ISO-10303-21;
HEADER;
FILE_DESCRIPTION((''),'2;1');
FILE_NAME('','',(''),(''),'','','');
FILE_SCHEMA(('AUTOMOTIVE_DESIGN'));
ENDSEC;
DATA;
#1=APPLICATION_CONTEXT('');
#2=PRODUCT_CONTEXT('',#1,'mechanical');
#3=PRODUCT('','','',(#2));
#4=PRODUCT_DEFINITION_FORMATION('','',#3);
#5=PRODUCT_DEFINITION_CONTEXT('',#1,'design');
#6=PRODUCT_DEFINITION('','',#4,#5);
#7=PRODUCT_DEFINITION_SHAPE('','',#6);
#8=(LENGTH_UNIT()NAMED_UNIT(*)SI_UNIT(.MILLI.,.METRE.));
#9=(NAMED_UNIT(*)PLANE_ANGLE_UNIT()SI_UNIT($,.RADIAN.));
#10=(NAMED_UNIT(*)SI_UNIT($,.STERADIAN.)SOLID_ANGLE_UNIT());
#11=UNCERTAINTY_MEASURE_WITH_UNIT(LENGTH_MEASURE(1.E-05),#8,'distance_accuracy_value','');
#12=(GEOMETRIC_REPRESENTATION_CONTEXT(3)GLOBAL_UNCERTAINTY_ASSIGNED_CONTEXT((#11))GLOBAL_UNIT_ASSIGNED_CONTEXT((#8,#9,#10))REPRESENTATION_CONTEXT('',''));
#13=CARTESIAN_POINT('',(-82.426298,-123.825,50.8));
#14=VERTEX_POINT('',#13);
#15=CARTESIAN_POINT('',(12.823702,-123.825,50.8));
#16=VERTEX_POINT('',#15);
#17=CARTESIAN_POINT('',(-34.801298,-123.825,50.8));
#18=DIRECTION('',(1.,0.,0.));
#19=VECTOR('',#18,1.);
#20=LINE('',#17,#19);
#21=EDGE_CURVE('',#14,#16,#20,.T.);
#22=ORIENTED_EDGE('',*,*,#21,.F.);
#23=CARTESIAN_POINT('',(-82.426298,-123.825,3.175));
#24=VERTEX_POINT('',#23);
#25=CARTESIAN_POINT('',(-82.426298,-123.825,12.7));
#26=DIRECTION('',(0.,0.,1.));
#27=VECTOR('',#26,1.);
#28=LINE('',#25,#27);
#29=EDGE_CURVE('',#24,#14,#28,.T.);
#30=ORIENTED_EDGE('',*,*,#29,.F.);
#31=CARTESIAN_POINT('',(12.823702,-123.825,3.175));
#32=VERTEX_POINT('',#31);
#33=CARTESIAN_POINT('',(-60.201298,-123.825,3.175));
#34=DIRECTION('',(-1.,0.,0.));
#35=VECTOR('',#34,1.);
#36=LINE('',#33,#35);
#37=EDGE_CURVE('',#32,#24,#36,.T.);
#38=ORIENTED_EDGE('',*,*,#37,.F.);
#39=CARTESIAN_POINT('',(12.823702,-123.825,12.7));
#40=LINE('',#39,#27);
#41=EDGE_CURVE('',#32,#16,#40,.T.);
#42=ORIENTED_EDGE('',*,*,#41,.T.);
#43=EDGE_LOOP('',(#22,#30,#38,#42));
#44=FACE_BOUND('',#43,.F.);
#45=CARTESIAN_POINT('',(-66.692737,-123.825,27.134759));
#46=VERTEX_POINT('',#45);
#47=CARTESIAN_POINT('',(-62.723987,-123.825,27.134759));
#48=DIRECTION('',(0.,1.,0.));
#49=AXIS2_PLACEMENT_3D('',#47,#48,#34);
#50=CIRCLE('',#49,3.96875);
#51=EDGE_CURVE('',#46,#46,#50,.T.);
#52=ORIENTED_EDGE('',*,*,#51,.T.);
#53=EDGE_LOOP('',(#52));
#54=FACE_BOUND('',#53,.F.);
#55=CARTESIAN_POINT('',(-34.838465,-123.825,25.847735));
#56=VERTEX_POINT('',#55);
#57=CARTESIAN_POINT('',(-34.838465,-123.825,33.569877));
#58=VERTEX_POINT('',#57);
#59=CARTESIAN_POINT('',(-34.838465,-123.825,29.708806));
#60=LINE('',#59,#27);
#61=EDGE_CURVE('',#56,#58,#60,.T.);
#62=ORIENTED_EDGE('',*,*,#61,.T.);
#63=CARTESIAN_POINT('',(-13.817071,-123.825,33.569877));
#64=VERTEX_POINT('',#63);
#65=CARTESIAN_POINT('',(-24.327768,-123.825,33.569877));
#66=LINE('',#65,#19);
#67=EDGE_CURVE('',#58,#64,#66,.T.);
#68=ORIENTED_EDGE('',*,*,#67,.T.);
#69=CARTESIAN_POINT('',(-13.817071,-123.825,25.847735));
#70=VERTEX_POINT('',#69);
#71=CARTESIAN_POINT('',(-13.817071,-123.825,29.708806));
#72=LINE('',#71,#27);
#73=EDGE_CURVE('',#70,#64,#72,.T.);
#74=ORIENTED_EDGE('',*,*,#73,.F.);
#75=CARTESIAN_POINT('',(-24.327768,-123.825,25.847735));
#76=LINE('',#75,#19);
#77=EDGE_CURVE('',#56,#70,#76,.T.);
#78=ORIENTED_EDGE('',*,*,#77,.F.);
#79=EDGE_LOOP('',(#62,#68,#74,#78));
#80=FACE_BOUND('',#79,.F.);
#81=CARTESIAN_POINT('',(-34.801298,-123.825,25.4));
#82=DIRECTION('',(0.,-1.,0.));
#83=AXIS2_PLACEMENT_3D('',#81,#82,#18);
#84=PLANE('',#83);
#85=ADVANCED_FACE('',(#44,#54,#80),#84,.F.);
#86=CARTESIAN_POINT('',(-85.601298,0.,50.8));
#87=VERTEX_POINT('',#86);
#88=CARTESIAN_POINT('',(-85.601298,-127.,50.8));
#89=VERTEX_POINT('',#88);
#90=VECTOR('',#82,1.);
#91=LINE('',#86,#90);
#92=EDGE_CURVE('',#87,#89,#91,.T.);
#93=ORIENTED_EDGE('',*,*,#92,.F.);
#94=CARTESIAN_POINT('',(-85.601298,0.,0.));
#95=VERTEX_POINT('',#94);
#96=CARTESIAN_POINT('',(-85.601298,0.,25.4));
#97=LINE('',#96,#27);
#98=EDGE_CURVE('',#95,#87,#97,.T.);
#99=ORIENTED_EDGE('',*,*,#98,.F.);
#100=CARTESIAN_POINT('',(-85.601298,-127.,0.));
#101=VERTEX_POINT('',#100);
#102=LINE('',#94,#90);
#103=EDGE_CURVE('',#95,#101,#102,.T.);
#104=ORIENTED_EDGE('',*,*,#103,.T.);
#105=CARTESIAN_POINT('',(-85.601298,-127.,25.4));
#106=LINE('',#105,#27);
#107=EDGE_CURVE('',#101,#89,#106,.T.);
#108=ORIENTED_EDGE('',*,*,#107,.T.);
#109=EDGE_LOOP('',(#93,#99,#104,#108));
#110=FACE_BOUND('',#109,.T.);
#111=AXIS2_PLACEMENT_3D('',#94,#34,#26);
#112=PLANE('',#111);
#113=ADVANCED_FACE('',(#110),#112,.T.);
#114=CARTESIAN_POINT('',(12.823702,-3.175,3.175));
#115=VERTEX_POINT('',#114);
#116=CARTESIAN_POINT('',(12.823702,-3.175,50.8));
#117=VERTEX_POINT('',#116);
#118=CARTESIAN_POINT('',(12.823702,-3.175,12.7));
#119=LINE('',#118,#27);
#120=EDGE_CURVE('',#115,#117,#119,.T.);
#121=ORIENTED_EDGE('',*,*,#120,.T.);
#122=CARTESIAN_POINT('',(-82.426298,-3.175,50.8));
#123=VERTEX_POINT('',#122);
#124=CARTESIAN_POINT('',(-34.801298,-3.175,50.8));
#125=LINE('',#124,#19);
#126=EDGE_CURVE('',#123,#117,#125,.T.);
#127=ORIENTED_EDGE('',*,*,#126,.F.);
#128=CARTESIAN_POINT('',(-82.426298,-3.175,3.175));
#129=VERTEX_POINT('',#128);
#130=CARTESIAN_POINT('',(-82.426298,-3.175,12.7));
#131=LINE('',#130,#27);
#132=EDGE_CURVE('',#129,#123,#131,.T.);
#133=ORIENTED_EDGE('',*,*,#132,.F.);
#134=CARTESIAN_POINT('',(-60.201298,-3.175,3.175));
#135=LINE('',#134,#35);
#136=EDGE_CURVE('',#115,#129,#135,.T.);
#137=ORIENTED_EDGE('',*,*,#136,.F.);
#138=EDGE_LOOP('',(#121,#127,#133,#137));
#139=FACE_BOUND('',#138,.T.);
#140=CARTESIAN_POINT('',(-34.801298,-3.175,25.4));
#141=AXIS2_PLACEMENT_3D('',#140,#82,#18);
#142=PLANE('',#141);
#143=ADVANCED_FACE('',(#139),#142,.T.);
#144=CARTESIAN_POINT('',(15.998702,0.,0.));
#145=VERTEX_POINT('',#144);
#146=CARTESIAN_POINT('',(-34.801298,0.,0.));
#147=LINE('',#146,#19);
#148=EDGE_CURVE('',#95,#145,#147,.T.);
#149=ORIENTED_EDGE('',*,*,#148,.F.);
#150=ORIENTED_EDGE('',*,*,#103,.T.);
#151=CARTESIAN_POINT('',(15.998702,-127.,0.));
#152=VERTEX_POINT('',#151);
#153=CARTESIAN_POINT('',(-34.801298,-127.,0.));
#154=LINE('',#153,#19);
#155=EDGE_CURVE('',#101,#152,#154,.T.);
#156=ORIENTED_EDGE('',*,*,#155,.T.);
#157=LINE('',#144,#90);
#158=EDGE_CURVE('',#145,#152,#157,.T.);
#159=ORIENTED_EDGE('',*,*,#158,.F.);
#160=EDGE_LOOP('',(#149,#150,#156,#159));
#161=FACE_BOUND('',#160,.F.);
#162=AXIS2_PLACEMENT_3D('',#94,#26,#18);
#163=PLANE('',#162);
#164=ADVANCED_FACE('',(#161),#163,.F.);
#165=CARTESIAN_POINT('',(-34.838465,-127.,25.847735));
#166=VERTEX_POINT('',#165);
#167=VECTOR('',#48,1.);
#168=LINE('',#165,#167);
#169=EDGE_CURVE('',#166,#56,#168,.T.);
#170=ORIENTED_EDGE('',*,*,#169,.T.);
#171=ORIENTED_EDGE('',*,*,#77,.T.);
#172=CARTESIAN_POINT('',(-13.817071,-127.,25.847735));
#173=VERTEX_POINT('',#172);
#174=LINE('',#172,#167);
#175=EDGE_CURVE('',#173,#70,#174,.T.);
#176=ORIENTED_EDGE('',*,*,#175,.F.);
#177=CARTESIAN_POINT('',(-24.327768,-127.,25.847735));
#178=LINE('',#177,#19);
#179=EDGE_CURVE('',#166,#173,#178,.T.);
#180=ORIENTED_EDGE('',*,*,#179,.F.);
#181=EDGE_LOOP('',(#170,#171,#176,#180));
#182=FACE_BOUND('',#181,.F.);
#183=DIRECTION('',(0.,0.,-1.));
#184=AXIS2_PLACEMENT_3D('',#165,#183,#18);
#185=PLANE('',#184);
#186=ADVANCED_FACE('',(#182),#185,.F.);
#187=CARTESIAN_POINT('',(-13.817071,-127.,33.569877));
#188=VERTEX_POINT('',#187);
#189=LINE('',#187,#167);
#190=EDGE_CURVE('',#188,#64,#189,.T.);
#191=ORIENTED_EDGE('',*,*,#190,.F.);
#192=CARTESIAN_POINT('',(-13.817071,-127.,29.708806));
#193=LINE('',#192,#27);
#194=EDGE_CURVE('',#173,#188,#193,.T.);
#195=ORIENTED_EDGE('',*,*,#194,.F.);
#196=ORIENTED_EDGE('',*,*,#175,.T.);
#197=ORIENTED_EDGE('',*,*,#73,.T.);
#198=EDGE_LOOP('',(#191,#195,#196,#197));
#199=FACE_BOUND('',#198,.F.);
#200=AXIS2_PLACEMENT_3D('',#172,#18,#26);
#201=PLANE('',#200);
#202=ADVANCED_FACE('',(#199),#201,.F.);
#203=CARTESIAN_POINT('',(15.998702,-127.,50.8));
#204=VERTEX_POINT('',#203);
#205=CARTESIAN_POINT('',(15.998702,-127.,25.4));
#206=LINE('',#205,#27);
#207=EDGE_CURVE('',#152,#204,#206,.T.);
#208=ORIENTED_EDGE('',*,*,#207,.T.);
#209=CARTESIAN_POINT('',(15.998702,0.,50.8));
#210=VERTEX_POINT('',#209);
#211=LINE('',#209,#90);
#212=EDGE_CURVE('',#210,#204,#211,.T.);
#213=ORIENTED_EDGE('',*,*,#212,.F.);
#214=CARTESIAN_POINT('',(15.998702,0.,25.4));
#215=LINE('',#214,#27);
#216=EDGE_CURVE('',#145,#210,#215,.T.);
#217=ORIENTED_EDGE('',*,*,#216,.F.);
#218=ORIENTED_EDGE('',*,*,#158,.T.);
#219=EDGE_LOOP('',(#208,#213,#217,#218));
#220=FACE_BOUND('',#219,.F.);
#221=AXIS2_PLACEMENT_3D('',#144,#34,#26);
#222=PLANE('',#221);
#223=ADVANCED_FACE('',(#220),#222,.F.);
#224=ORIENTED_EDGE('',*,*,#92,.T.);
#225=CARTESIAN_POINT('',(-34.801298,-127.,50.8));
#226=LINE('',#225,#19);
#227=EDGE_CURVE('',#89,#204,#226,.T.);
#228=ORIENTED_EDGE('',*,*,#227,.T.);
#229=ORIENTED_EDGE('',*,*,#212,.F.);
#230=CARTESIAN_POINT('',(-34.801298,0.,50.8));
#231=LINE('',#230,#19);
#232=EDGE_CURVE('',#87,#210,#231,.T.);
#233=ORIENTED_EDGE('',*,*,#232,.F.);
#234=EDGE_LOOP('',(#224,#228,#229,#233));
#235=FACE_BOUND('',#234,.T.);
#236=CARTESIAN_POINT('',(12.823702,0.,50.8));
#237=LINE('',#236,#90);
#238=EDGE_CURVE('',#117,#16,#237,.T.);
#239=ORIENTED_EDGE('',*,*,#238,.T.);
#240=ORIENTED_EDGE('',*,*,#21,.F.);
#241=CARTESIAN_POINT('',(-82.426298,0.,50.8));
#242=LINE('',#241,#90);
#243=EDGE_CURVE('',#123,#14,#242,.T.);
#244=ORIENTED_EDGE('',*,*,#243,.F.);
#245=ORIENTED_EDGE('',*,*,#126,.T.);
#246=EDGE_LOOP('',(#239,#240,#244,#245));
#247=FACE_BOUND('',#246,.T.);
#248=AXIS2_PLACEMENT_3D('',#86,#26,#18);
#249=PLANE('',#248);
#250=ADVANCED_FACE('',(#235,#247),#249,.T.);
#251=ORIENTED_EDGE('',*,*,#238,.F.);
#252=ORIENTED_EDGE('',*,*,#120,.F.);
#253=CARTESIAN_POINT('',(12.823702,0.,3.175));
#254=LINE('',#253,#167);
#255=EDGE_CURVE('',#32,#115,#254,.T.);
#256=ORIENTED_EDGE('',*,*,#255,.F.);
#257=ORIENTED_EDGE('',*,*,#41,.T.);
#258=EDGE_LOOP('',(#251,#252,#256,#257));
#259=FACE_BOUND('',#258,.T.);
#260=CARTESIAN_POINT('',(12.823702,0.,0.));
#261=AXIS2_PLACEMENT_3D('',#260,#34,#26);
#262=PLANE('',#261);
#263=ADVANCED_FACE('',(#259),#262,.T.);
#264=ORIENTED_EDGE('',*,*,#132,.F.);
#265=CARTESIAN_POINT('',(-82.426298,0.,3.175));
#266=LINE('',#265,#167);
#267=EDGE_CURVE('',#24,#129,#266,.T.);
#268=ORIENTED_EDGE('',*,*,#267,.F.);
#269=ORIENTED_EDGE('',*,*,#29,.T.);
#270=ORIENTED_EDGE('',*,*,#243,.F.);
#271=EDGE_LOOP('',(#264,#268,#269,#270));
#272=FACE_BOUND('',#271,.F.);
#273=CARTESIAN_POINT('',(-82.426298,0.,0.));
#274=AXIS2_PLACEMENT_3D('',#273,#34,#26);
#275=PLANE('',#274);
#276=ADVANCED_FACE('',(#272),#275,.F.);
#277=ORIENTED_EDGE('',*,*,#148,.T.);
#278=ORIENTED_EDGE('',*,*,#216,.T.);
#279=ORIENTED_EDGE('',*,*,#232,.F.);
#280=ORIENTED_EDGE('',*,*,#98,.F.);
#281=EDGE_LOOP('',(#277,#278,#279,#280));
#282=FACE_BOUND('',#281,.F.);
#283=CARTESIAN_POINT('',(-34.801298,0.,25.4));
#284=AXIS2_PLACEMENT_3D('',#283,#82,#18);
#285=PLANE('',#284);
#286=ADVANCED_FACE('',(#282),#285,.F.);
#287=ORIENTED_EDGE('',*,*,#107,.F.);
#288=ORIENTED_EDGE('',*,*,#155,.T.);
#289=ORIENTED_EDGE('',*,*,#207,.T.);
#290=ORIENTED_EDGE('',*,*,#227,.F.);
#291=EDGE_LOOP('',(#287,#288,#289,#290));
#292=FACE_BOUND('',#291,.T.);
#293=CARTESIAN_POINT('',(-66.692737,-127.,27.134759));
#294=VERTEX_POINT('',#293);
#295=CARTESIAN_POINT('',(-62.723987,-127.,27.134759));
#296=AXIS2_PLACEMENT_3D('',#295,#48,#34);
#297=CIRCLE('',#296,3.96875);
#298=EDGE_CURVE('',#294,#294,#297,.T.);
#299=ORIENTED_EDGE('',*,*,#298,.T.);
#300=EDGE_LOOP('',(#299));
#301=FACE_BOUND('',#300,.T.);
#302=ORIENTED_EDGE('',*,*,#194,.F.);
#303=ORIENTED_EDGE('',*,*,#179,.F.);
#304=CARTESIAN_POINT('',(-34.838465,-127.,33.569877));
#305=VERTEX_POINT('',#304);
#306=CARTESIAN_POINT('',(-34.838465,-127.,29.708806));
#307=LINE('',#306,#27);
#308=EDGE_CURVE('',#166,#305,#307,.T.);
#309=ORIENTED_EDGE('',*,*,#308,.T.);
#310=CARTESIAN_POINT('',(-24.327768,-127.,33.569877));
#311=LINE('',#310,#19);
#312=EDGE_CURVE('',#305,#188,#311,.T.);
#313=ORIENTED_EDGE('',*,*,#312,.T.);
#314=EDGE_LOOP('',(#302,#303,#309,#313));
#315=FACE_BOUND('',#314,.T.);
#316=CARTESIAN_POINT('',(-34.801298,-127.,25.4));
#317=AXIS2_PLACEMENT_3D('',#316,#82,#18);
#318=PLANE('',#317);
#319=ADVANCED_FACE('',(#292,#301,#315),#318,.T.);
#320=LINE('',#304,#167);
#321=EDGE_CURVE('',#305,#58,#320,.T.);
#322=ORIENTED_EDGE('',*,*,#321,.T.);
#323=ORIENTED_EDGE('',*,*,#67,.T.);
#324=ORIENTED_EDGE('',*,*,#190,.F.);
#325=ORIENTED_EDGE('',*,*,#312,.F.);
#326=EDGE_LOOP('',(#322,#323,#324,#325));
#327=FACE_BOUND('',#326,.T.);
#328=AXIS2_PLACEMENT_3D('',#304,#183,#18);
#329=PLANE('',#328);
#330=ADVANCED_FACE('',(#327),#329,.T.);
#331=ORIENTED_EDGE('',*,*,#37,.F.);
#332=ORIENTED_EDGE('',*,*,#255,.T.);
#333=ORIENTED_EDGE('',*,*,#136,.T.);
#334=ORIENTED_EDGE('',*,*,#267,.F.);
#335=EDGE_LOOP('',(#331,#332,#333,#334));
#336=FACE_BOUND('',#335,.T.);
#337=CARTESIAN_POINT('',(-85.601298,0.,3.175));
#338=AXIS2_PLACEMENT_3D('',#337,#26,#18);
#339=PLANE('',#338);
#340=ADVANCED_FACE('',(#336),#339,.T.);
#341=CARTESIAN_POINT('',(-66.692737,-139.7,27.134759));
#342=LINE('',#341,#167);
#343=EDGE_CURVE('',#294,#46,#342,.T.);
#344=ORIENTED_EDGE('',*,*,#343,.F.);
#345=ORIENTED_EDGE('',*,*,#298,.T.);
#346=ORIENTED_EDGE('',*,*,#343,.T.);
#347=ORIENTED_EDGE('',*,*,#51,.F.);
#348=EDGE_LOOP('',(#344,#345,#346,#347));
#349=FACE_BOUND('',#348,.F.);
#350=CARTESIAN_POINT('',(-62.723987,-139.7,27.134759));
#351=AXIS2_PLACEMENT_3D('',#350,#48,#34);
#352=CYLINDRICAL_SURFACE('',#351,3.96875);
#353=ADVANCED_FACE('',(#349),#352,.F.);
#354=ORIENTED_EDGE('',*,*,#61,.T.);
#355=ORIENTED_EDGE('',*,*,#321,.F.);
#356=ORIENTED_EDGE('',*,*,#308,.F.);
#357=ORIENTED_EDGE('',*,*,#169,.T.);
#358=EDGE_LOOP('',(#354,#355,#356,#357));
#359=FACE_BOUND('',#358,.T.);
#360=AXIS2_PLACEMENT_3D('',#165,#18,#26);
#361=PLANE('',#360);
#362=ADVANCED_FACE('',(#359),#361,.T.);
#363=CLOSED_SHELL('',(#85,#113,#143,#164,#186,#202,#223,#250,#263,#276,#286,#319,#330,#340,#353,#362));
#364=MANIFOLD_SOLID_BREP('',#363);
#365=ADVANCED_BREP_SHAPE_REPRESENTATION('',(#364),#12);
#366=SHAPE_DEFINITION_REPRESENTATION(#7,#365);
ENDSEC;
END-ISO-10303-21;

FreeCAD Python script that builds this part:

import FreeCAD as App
import Part
import Sketcher

V = App.Vector
Q = App.Units.Quantity


def faces_at(feature, points):
    """Names of the faces that lie closest to the given points."""
    faces = feature.Shape.Faces
    near = lambda p: min(range(len(faces)), key=lambda i: faces[i].distToShape(Part.Vertex(*p))[0])
    return sorted({f"Face{near(p) + 1}" for p in points})

doc = App.newDocument("Part")
params = doc.addObject("Spreadsheet::Sheet", "Params")
for row, (alias, value) in enumerate([
    ("sketch1_width", "4 in"),
    ("sketch1_height", "2 in"),
    ("pad1_length", "5 in"),
    ("thickness_wall", "0.125 in"),
    ("sketch2_diameter", "0.3125 in"),
    ("hole_diameter", "0.3125 in"),
    ("hole_depth", "0.5 in"),
    ("pocket1_length", "0.125 in"),
], start=1):
    params.set(f"A{row}", alias)
    params.set(f"B{row}", "=" + value)
    params.setAlias(f"B{row}", alias)

body = doc.addObject("PartDesign::Body", "Body")

sketch1 = body.newObject("Sketcher::SketchObject", "Sketch")
sketch1.AttachmentSupport = (doc.getObject("XZ_Plane"), [""])
sketch1.MapMode = "FlatFace"
sketch1.addGeometry([
    Part.LineSegment(V(-85.601298, 50.8, 0), V(-85.601298, 0, 0)),
    Part.LineSegment(V(-85.601298, 0, 0), V(15.998702, 0, 0)),
    Part.LineSegment(V(15.998702, 0, 0), V(15.998702, 50.8, 0)),
    Part.LineSegment(V(15.998702, 50.8, 0), V(-85.601298, 50.8, 0)),
], False)
sketch1.addConstraint([
    Sketcher.Constraint("Coincident", 0, 2, 1, 1),
    Sketcher.Constraint("Coincident", 1, 2, 2, 1),
    Sketcher.Constraint("Coincident", 2, 2, 3, 1),
    Sketcher.Constraint("Coincident", 3, 2, 0, 1),
    Sketcher.Constraint("Vertical", 0),
    Sketcher.Constraint("Horizontal", 1),
    Sketcher.Constraint("Vertical", 2),
    Sketcher.Constraint("Horizontal", 3),
    Sketcher.Constraint("PointOnObject", 0, 2, -1),
    Sketcher.Constraint("DistanceX", 1, 1, 1, 2, Q("4 in")),
    Sketcher.Constraint("DistanceY", 0, 2, 0, 1, Q("2 in")),
    Sketcher.Constraint("DistanceX", 0, 2, -1, 1, Q("85.601298 mm")),
])
sketch1.setExpression("Constraints[9]", "Params.sketch1_width")
sketch1.setExpression("Constraints[10]", "Params.sketch1_height")
pad1 = body.newObject("PartDesign::Pad", "Pad")
pad1.Profile = sketch1
pad1.setExpression("Length", "Params.pad1_length")
doc.recompute()

thickness = body.newObject("PartDesign::Thickness", "Thickness")
thickness.Base = (pad1, faces_at(pad1, [(-34.801, -63.5, 50.8)]))
thickness.setExpression("Value", "Params.thickness_wall")
thickness.Reversed = True
thickness.Join = "Arc"

sketch2 = body.newObject("Sketcher::SketchObject", "Sketch001")
sketch2.AttachmentSupport = (doc.getObject("XZ_Plane"), [""])
sketch2.MapMode = "FlatFace"
sketch2.AttachmentOffset = App.Placement(V(0, 0, 5 * 25.4), App.Rotation())
sketch2.addGeometry(Part.Circle(V(-62.723987, 27.134759, 0), V(0, 0, 1), 3.96875), False)
sketch2.addConstraint([
    Sketcher.Constraint("Diameter", 0, Q("0.3125 in")),
    Sketcher.Constraint("DistanceY", -1, 1, 0, 3, Q("27.134759 mm")),
    Sketcher.Constraint("DistanceX", 0, 3, -1, 1, Q("62.723987 mm")),
])
sketch2.setExpression("Constraints[0]", "Params.sketch2_diameter")
doc.recompute()
hole = body.newObject("PartDesign::Hole", "Hole")
hole.Profile = sketch2
hole.ThreadType = "None"
hole.setExpression("Diameter", "Params.hole_diameter")
hole.DepthType = "Dimension"
hole.setExpression("Depth", "Params.hole_depth")
hole.DrillPoint = "Flat"

sketch3 = body.newObject("Sketcher::SketchObject", "Sketch002")
sketch3.AttachmentSupport = (doc.getObject("XZ_Plane"), [""])
sketch3.MapMode = "FlatFace"
sketch3.AttachmentOffset = App.Placement(V(0, 0, 5 * 25.4), App.Rotation())
sketch3.addGeometry([
    Part.LineSegment(V(-34.838465, 33.569877, 0), V(-34.838465, 25.847735, 0)),
    Part.LineSegment(V(-34.838465, 25.847735, 0), V(-13.817071, 25.847735, 0)),
    Part.LineSegment(V(-13.817071, 25.847735, 0), V(-13.817071, 33.569877, 0)),
    Part.LineSegment(V(-13.817071, 33.569877, 0), V(-34.838465, 33.569877, 0)),
], False)
sketch3.addConstraint([
    Sketcher.Constraint("Coincident", 0, 2, 1, 1),
    Sketcher.Constraint("Coincident", 1, 2, 2, 1),
    Sketcher.Constraint("Coincident", 2, 2, 3, 1),
    Sketcher.Constraint("Coincident", 3, 2, 0, 1),
    Sketcher.Constraint("Vertical", 0),
    Sketcher.Constraint("Horizontal", 1),
    Sketcher.Constraint("Vertical", 2),
    Sketcher.Constraint("Horizontal", 3),
    Sketcher.Constraint("DistanceX", 1, 1, 1, 2, Q("21.021394 mm")),
    Sketcher.Constraint("DistanceY", 0, 2, 0, 1, Q("7.722143 mm")),
    Sketcher.Constraint("DistanceX", 1, 2, -1, 1, Q("13.817071 mm")),
    Sketcher.Constraint("DistanceY", -1, 1, 0, 2, Q("25.847735 mm")),
])
pocket1 = body.newObject("PartDesign::Pocket", "Pocket")
pocket1.Profile = sketch3
pocket1.setExpression("Length", "Params.pocket1_length")

doc.recompute()
